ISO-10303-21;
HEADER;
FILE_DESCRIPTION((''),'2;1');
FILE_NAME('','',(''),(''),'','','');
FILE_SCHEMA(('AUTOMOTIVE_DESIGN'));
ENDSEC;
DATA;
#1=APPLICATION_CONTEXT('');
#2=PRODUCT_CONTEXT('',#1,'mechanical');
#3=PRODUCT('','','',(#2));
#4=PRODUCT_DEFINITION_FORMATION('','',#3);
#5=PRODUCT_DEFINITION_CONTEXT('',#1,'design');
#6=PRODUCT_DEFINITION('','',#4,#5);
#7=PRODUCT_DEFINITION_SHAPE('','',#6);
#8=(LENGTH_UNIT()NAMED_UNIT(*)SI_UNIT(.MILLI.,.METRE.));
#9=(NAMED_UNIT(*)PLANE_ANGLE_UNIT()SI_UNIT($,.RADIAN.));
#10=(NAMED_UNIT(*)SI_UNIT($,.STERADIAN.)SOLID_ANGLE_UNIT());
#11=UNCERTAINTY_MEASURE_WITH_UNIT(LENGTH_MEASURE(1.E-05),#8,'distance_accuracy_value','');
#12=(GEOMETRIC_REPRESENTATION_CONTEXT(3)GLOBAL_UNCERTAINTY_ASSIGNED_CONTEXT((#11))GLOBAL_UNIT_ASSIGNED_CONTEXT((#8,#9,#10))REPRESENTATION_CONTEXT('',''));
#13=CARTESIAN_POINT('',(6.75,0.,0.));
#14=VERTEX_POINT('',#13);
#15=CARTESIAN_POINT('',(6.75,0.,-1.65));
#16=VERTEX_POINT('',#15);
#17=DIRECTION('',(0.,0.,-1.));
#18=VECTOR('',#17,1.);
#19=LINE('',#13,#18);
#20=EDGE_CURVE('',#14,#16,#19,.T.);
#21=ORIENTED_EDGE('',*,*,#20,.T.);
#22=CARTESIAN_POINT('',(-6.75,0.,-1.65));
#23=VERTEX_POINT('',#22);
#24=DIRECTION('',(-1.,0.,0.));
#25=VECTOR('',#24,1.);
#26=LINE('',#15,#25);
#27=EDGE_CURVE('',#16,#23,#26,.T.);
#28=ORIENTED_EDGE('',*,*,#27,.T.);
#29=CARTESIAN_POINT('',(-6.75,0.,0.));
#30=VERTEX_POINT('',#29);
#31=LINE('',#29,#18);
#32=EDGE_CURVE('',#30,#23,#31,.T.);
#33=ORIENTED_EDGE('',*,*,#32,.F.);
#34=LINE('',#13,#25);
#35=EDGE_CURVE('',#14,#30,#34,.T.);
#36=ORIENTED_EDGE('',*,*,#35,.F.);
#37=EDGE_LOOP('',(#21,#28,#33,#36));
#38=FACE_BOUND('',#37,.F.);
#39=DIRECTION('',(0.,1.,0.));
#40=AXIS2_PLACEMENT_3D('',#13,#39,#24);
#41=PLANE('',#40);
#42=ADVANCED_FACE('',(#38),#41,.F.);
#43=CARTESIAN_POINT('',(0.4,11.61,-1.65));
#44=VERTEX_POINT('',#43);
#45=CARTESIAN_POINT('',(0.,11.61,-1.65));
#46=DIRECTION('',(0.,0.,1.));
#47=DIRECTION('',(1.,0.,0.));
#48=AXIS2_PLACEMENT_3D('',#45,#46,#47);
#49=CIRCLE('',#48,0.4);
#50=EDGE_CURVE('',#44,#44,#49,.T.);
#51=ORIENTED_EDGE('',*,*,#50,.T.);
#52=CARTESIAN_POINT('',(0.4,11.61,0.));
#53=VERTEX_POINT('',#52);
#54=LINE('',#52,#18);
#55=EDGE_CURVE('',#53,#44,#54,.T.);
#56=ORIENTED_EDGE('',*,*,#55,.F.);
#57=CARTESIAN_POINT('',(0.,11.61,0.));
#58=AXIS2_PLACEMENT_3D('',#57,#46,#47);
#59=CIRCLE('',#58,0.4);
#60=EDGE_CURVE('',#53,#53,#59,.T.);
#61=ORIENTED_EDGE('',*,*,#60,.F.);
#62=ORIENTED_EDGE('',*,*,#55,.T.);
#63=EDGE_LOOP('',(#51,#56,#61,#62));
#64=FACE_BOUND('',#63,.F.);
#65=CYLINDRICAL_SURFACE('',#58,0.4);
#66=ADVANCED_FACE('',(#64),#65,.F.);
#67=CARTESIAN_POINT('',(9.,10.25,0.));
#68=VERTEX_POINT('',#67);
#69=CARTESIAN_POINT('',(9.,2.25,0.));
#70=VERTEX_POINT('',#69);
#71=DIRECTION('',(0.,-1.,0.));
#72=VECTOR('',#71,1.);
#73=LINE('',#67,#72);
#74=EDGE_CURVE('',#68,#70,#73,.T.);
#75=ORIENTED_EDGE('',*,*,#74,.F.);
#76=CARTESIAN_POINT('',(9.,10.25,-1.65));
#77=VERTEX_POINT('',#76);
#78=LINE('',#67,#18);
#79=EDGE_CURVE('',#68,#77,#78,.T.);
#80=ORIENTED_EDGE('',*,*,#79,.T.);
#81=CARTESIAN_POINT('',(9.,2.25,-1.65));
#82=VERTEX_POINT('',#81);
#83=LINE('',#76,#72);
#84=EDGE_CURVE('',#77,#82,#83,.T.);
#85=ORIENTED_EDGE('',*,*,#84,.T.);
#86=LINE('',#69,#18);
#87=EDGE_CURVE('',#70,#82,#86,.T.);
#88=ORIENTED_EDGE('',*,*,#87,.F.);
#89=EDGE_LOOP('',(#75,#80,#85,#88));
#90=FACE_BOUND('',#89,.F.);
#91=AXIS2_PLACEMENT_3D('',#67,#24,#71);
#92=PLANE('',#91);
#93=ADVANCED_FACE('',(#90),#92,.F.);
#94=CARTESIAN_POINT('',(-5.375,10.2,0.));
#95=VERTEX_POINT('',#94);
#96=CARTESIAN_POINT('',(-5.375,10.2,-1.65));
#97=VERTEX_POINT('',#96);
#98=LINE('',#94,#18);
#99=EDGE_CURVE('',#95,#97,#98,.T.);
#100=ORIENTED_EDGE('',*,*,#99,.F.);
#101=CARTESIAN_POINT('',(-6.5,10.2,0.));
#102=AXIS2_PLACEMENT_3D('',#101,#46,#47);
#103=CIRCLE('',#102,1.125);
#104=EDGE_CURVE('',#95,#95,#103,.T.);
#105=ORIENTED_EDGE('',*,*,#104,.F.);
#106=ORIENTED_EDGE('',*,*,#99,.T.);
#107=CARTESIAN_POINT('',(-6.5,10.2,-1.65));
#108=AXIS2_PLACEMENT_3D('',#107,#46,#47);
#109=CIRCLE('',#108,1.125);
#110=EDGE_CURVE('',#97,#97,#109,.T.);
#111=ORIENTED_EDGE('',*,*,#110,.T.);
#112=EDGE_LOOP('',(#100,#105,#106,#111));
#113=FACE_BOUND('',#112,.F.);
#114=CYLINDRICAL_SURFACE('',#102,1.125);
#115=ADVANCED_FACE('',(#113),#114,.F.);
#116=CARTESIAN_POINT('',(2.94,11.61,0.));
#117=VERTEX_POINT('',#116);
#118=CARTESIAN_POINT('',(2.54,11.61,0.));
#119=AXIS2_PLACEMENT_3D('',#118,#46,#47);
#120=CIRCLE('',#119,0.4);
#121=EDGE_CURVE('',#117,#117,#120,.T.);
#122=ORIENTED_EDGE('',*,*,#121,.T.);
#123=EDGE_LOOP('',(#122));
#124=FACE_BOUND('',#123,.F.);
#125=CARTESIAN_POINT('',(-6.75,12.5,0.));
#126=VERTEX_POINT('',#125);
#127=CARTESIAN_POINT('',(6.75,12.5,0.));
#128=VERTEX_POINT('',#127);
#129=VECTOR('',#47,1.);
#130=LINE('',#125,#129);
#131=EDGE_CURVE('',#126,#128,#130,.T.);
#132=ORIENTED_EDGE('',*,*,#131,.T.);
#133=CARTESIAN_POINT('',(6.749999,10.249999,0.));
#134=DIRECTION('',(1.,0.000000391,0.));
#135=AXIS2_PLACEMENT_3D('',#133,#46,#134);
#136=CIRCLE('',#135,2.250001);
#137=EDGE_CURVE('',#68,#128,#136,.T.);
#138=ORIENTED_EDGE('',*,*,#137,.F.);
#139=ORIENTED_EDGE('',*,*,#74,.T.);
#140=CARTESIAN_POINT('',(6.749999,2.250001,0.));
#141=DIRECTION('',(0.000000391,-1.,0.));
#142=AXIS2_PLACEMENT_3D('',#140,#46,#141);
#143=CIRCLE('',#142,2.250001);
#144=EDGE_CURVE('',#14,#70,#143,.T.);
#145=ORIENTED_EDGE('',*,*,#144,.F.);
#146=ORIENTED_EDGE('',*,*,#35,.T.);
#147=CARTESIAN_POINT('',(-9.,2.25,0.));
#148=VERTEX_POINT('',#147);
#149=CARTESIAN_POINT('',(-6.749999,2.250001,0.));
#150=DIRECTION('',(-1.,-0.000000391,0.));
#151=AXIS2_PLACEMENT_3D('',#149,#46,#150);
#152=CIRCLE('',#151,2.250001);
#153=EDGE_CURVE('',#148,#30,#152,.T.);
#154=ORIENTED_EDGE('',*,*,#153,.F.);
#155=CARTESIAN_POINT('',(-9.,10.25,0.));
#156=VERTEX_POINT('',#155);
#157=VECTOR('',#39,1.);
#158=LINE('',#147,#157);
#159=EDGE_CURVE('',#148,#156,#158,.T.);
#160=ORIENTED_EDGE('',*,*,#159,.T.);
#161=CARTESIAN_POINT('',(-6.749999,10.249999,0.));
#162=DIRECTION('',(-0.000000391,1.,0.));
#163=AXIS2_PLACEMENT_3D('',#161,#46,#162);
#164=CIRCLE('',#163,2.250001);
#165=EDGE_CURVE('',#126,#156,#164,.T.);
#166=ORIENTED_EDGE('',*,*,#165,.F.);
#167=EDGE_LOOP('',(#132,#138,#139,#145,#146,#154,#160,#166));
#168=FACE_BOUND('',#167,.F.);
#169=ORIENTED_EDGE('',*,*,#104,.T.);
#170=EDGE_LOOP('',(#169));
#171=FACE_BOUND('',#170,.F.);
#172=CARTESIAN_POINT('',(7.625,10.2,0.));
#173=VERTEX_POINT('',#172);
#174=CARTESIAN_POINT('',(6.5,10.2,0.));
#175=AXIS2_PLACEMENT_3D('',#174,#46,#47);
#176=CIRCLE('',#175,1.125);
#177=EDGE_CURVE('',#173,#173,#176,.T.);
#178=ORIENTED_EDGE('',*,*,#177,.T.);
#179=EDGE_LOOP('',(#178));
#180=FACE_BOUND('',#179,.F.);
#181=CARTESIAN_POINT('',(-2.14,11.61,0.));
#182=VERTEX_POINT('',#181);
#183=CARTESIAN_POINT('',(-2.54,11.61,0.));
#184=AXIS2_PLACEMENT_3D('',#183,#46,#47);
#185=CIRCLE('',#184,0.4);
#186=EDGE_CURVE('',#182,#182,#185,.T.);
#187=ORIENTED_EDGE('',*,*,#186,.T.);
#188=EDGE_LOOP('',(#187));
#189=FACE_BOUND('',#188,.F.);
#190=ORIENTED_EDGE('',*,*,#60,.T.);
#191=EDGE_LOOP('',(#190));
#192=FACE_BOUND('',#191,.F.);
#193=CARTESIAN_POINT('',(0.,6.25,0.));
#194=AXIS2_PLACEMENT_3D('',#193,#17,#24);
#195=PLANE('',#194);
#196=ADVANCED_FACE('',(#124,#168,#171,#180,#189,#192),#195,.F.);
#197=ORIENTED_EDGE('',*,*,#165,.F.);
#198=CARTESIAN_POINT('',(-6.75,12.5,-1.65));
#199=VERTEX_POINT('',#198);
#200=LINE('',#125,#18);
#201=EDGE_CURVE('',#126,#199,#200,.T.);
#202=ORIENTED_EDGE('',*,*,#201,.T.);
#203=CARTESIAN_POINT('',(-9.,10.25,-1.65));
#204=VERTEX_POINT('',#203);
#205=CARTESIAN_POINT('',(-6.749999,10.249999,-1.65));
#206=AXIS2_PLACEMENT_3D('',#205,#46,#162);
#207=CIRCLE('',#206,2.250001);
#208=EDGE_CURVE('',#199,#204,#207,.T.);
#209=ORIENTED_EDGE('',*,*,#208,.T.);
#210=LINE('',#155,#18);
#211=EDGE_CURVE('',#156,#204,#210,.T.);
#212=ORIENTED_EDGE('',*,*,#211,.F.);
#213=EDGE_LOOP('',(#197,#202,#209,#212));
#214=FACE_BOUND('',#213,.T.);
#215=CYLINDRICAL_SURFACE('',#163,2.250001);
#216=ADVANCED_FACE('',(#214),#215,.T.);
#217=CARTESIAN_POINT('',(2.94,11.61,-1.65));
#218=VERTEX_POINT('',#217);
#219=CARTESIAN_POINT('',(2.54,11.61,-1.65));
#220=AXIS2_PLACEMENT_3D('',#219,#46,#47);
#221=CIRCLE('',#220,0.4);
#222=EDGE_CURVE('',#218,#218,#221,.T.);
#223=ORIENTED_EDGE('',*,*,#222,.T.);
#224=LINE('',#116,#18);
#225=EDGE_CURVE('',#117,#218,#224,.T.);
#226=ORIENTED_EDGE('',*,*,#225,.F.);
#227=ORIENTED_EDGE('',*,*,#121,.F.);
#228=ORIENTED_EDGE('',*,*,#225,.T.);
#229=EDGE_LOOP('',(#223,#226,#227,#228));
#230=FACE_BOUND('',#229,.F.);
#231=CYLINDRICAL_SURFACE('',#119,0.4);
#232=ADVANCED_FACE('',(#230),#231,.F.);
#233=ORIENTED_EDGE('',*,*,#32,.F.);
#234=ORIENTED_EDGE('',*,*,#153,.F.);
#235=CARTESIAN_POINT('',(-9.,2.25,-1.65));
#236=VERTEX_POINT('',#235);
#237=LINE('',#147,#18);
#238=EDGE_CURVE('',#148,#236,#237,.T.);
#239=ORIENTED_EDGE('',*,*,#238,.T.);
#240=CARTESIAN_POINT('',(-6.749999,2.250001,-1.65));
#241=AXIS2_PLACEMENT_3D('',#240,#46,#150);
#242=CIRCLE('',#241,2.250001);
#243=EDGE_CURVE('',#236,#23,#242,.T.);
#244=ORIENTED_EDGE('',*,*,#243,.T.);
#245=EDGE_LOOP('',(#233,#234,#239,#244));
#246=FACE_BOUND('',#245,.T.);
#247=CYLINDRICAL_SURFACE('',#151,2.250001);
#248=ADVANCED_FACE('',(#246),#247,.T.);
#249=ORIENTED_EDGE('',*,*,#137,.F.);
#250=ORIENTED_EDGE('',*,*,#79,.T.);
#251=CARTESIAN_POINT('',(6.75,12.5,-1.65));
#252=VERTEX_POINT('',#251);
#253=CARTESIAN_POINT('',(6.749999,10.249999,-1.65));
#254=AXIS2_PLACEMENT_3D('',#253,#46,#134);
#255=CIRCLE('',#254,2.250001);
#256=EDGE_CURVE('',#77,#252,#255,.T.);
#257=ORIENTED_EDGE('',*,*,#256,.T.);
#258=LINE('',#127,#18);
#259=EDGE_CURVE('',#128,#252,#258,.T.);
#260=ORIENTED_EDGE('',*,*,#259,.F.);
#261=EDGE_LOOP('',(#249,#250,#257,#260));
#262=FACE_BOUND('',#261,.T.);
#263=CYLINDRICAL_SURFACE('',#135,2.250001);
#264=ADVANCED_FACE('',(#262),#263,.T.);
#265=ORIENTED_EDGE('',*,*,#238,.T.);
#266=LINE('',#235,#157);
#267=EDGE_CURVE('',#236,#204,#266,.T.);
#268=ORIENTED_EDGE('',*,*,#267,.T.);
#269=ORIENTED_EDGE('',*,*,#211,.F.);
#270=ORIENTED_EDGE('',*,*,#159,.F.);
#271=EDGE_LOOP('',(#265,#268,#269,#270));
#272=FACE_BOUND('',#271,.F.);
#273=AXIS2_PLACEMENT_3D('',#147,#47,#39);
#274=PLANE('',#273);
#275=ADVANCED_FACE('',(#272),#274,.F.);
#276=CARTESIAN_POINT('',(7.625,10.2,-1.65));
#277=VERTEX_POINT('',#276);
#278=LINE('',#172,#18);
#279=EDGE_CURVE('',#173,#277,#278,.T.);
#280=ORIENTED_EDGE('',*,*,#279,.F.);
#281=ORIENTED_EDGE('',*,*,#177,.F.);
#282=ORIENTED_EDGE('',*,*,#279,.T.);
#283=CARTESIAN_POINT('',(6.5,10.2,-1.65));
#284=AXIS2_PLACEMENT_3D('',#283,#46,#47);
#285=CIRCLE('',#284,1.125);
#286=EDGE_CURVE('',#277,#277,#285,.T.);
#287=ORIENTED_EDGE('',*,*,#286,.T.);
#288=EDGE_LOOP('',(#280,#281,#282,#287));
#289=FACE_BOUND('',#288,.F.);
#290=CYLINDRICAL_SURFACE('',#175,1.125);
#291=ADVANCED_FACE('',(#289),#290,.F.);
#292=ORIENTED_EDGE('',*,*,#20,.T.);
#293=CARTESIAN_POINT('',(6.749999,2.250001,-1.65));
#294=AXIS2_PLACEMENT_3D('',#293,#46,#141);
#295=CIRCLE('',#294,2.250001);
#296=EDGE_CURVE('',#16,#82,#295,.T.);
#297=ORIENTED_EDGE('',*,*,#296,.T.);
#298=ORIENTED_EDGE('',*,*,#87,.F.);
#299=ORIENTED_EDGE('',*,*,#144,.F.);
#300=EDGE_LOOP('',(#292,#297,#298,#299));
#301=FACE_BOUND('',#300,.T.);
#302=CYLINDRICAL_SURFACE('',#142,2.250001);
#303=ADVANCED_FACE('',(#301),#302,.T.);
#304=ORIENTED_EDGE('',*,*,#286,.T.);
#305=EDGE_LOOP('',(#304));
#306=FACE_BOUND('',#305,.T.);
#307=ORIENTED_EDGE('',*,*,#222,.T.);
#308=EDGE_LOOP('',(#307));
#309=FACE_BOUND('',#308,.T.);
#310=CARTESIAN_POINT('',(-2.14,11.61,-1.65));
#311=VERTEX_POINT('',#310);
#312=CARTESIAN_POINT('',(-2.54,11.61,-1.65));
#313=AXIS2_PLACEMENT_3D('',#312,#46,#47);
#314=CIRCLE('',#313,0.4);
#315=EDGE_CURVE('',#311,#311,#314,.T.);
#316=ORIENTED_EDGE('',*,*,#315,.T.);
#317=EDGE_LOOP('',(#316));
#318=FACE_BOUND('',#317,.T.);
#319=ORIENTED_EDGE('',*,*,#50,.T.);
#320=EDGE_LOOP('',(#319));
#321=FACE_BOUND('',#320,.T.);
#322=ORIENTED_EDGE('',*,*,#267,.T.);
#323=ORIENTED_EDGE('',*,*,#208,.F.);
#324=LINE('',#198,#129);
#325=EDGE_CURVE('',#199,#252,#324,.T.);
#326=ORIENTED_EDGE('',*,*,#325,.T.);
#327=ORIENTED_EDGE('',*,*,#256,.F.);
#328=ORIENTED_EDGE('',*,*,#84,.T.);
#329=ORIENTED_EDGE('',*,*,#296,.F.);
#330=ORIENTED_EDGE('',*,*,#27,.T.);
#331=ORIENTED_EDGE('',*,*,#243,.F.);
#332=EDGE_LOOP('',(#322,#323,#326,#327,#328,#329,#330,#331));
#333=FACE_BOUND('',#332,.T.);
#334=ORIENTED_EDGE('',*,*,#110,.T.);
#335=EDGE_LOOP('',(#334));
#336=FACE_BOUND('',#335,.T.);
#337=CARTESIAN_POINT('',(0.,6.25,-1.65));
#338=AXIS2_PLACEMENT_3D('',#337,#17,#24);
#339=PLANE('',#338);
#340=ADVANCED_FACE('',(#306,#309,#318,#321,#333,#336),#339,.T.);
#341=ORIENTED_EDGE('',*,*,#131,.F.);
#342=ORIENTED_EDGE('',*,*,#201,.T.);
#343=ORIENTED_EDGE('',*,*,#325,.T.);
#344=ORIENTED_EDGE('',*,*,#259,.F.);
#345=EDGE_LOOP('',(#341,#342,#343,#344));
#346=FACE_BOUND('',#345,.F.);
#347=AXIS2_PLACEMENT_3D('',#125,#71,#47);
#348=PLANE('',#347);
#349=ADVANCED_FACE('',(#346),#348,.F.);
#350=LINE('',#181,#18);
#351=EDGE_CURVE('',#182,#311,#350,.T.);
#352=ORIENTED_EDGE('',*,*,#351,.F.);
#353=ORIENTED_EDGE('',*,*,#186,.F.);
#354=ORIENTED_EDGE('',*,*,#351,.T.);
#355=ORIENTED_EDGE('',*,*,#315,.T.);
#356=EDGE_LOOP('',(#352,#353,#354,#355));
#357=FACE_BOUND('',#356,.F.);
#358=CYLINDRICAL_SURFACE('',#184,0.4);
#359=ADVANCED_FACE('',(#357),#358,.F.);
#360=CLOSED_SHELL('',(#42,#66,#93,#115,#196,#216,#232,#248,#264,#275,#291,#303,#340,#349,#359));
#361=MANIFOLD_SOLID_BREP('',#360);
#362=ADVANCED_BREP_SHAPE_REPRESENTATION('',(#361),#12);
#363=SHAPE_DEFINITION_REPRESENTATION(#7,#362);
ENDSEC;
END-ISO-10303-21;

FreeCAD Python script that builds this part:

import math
import FreeCAD as App
import Part
import Sketcher

doc = App.newDocument("Part")
params = doc.addObject("Spreadsheet::Sheet", "Params")
for row, (alias, value) in enumerate([
    ("sketch1_height", "8 mm"),
    ("sketch1_radius", "2.250001 mm"),
    ("sketch1_width", "13.5 mm"),
    ("pad1_length", "1.65 mm"),
    ("sketch2_diameter", "2.25 mm"),
    ("sketch3_diameter", "0.8 mm"),
], start=1):
    params.set(f"A{row}", alias)
    params.set(f"B{row}", "=" + value)
    params.setAlias(f"B{row}", alias)

body = doc.addObject("PartDesign::Body", "Body")

# Sketch on XY plane
sketch1 = body.newObject("Sketcher::SketchObject", "Sketch")
sketch1.AttachmentSupport = (doc.getObject("XY_Plane"), [""])
sketch1.MapMode = "FlatFace"
sketch1.addGeometry([
    Part.LineSegment(App.Vector(6.8, 12.5, 0), App.Vector(-6.8, 12.5, 0)),  # 0
    Part.ArcOfCircle(Part.Circle(App.Vector(-6.7, 10.2, 0), App.Vector(0, 0, 1), 2.3), math.radians(90), math.radians(180)),  # 1
    Part.LineSegment(App.Vector(-9, 10.2, 0), App.Vector(-9, 2.2, 0)),  # 2
    Part.ArcOfCircle(Part.Circle(App.Vector(-6.7, 2.3, 0), App.Vector(0, 0, 1), 2.3), math.radians(-180), math.radians(-90)),  # 3
    Part.LineSegment(App.Vector(-6.8, 0, 0), App.Vector(6.8, 0, 0)),  # 4
    Part.ArcOfCircle(Part.Circle(App.Vector(6.7, 2.3, 0), App.Vector(0, 0, 1), 2.3), math.radians(-90), math.radians(0)),  # 5
    Part.LineSegment(App.Vector(9, 2.2, 0), App.Vector(9, 10.2, 0)),  # 6
    Part.ArcOfCircle(Part.Circle(App.Vector(6.7, 10.2, 0), App.Vector(0, 0, 1), 2.3), math.radians(0), math.radians(90)),  # 7
], False)
sketch1.addConstraint([
    Sketcher.Constraint("Tangent", 0, 2, 1, 1),
    Sketcher.Constraint("Tangent", 1, 2, 2, 1),
    Sketcher.Constraint("Tangent", 2, 2, 3, 1),
    Sketcher.Constraint("Tangent", 3, 2, 4, 1),
    Sketcher.Constraint("Tangent", 4, 2, 5, 1),
    Sketcher.Constraint("Tangent", 5, 2, 6, 1),
    Sketcher.Constraint("Tangent", 6, 2, 7, 1),
    Sketcher.Constraint("Tangent", 7, 2, 0, 1),
    Sketcher.Constraint("Horizontal", 0),
    Sketcher.Constraint("Vertical", 2),
    Sketcher.Constraint("Horizontal", 4),
    Sketcher.Constraint("Vertical", 6),
    Sketcher.Constraint("Equal", 1, 3),
    Sketcher.Constraint("Equal", 3, 5),
    Sketcher.Constraint("Equal", 5, 7),
    Sketcher.Constraint("Symmetric", 3, 2, 4, 2, -1, 1),
    Sketcher.Constraint("DistanceY", 2, 2, 2, 1, 8.0),
    Sketcher.Constraint("Radius", 1, 2.250001),
    Sketcher.Constraint("DistanceX", 0, 2, 0, 1, 13.5),
])
sketch1.setExpression("Constraints[16]", "Params.sketch1_height")
sketch1.setExpression("Constraints[17]", "Params.sketch1_radius")
sketch1.setExpression("Constraints[18]", "Params.sketch1_width")
pad1 = body.newObject("PartDesign::Pad", "Pad")
pad1.Profile = sketch1
pad1.setExpression("Length", "Params.pad1_length")
pad1.Reversed = True

# Sketch on XY plane
sketch2 = body.newObject("Sketcher::SketchObject", "Sketch001")
sketch2.AttachmentSupport = (doc.getObject("XY_Plane"), [""])
sketch2.MapMode = "FlatFace"
sketch2.addGeometry([
    Part.Circle(App.Vector(-6.5, 10.2, 0), App.Vector(0, 0, 1), 1.1),
    Part.Circle(App.Vector(6.5, 10.2, 0), App.Vector(0, 0, 1), 1.1),
], False)
sketch2.addConstraint([
    Sketcher.Constraint("Equal", 0, 1),
    Sketcher.Constraint("Symmetric", 0, 3, 1, 3, -2),
    Sketcher.Constraint("Diameter", 0, 2.25),
    Sketcher.Constraint("DistanceX", 0, 3, 1, 3, 13.0),
    Sketcher.Constraint("DistanceY", -1, 1, 0, 3, 10.2),
])
sketch2.setExpression("Constraints[2]", "Params.sketch2_diameter")
pocket1 = body.newObject("PartDesign::Pocket", "Pocket")
pocket1.Profile = sketch2
pocket1.Type = "ThroughAll"

# Sketch on XY plane
sketch3 = body.newObject("Sketcher::SketchObject", "Sketch002")
sketch3.AttachmentSupport = (doc.getObject("XY_Plane"), [""])
sketch3.MapMode = "FlatFace"
sketch3.addGeometry([
    Part.Circle(App.Vector(0, 11.61, 0), App.Vector(0, 0, 1), 0.4),
    Part.Circle(App.Vector(2.54, 11.61, 0), App.Vector(0, 0, 1), 0.4),
    Part.Circle(App.Vector(-2.54, 11.61, 0), App.Vector(0, 0, 1), 0.4),
], False)
sketch3.addConstraint([
    Sketcher.Constraint("Equal", 0, 1),
    Sketcher.Constraint("Equal", 1, 2),
    Sketcher.Constraint("Symmetric", 1, 3, 2, 3, -2),
    Sketcher.Constraint("PointOnObject", 0, 3, -2),
    Sketcher.Constraint("Horizontal", 0, 3, 1, 3),
    Sketcher.Constraint("Diameter", 0, 0.8),
    Sketcher.Constraint("DistanceY", -1, 1, 0, 3, 11.61),
    Sketcher.Constraint("DistanceX", -1, 1, 1, 3, 2.54),
])
sketch3.setExpression("Constraints[5]", "Params.sketch3_diameter")
pocket2 = body.newObject("PartDesign::Pocket", "Pocket001")
pocket2.Profile = sketch3
pocket2.Type = "ThroughAll"

doc.recompute()
